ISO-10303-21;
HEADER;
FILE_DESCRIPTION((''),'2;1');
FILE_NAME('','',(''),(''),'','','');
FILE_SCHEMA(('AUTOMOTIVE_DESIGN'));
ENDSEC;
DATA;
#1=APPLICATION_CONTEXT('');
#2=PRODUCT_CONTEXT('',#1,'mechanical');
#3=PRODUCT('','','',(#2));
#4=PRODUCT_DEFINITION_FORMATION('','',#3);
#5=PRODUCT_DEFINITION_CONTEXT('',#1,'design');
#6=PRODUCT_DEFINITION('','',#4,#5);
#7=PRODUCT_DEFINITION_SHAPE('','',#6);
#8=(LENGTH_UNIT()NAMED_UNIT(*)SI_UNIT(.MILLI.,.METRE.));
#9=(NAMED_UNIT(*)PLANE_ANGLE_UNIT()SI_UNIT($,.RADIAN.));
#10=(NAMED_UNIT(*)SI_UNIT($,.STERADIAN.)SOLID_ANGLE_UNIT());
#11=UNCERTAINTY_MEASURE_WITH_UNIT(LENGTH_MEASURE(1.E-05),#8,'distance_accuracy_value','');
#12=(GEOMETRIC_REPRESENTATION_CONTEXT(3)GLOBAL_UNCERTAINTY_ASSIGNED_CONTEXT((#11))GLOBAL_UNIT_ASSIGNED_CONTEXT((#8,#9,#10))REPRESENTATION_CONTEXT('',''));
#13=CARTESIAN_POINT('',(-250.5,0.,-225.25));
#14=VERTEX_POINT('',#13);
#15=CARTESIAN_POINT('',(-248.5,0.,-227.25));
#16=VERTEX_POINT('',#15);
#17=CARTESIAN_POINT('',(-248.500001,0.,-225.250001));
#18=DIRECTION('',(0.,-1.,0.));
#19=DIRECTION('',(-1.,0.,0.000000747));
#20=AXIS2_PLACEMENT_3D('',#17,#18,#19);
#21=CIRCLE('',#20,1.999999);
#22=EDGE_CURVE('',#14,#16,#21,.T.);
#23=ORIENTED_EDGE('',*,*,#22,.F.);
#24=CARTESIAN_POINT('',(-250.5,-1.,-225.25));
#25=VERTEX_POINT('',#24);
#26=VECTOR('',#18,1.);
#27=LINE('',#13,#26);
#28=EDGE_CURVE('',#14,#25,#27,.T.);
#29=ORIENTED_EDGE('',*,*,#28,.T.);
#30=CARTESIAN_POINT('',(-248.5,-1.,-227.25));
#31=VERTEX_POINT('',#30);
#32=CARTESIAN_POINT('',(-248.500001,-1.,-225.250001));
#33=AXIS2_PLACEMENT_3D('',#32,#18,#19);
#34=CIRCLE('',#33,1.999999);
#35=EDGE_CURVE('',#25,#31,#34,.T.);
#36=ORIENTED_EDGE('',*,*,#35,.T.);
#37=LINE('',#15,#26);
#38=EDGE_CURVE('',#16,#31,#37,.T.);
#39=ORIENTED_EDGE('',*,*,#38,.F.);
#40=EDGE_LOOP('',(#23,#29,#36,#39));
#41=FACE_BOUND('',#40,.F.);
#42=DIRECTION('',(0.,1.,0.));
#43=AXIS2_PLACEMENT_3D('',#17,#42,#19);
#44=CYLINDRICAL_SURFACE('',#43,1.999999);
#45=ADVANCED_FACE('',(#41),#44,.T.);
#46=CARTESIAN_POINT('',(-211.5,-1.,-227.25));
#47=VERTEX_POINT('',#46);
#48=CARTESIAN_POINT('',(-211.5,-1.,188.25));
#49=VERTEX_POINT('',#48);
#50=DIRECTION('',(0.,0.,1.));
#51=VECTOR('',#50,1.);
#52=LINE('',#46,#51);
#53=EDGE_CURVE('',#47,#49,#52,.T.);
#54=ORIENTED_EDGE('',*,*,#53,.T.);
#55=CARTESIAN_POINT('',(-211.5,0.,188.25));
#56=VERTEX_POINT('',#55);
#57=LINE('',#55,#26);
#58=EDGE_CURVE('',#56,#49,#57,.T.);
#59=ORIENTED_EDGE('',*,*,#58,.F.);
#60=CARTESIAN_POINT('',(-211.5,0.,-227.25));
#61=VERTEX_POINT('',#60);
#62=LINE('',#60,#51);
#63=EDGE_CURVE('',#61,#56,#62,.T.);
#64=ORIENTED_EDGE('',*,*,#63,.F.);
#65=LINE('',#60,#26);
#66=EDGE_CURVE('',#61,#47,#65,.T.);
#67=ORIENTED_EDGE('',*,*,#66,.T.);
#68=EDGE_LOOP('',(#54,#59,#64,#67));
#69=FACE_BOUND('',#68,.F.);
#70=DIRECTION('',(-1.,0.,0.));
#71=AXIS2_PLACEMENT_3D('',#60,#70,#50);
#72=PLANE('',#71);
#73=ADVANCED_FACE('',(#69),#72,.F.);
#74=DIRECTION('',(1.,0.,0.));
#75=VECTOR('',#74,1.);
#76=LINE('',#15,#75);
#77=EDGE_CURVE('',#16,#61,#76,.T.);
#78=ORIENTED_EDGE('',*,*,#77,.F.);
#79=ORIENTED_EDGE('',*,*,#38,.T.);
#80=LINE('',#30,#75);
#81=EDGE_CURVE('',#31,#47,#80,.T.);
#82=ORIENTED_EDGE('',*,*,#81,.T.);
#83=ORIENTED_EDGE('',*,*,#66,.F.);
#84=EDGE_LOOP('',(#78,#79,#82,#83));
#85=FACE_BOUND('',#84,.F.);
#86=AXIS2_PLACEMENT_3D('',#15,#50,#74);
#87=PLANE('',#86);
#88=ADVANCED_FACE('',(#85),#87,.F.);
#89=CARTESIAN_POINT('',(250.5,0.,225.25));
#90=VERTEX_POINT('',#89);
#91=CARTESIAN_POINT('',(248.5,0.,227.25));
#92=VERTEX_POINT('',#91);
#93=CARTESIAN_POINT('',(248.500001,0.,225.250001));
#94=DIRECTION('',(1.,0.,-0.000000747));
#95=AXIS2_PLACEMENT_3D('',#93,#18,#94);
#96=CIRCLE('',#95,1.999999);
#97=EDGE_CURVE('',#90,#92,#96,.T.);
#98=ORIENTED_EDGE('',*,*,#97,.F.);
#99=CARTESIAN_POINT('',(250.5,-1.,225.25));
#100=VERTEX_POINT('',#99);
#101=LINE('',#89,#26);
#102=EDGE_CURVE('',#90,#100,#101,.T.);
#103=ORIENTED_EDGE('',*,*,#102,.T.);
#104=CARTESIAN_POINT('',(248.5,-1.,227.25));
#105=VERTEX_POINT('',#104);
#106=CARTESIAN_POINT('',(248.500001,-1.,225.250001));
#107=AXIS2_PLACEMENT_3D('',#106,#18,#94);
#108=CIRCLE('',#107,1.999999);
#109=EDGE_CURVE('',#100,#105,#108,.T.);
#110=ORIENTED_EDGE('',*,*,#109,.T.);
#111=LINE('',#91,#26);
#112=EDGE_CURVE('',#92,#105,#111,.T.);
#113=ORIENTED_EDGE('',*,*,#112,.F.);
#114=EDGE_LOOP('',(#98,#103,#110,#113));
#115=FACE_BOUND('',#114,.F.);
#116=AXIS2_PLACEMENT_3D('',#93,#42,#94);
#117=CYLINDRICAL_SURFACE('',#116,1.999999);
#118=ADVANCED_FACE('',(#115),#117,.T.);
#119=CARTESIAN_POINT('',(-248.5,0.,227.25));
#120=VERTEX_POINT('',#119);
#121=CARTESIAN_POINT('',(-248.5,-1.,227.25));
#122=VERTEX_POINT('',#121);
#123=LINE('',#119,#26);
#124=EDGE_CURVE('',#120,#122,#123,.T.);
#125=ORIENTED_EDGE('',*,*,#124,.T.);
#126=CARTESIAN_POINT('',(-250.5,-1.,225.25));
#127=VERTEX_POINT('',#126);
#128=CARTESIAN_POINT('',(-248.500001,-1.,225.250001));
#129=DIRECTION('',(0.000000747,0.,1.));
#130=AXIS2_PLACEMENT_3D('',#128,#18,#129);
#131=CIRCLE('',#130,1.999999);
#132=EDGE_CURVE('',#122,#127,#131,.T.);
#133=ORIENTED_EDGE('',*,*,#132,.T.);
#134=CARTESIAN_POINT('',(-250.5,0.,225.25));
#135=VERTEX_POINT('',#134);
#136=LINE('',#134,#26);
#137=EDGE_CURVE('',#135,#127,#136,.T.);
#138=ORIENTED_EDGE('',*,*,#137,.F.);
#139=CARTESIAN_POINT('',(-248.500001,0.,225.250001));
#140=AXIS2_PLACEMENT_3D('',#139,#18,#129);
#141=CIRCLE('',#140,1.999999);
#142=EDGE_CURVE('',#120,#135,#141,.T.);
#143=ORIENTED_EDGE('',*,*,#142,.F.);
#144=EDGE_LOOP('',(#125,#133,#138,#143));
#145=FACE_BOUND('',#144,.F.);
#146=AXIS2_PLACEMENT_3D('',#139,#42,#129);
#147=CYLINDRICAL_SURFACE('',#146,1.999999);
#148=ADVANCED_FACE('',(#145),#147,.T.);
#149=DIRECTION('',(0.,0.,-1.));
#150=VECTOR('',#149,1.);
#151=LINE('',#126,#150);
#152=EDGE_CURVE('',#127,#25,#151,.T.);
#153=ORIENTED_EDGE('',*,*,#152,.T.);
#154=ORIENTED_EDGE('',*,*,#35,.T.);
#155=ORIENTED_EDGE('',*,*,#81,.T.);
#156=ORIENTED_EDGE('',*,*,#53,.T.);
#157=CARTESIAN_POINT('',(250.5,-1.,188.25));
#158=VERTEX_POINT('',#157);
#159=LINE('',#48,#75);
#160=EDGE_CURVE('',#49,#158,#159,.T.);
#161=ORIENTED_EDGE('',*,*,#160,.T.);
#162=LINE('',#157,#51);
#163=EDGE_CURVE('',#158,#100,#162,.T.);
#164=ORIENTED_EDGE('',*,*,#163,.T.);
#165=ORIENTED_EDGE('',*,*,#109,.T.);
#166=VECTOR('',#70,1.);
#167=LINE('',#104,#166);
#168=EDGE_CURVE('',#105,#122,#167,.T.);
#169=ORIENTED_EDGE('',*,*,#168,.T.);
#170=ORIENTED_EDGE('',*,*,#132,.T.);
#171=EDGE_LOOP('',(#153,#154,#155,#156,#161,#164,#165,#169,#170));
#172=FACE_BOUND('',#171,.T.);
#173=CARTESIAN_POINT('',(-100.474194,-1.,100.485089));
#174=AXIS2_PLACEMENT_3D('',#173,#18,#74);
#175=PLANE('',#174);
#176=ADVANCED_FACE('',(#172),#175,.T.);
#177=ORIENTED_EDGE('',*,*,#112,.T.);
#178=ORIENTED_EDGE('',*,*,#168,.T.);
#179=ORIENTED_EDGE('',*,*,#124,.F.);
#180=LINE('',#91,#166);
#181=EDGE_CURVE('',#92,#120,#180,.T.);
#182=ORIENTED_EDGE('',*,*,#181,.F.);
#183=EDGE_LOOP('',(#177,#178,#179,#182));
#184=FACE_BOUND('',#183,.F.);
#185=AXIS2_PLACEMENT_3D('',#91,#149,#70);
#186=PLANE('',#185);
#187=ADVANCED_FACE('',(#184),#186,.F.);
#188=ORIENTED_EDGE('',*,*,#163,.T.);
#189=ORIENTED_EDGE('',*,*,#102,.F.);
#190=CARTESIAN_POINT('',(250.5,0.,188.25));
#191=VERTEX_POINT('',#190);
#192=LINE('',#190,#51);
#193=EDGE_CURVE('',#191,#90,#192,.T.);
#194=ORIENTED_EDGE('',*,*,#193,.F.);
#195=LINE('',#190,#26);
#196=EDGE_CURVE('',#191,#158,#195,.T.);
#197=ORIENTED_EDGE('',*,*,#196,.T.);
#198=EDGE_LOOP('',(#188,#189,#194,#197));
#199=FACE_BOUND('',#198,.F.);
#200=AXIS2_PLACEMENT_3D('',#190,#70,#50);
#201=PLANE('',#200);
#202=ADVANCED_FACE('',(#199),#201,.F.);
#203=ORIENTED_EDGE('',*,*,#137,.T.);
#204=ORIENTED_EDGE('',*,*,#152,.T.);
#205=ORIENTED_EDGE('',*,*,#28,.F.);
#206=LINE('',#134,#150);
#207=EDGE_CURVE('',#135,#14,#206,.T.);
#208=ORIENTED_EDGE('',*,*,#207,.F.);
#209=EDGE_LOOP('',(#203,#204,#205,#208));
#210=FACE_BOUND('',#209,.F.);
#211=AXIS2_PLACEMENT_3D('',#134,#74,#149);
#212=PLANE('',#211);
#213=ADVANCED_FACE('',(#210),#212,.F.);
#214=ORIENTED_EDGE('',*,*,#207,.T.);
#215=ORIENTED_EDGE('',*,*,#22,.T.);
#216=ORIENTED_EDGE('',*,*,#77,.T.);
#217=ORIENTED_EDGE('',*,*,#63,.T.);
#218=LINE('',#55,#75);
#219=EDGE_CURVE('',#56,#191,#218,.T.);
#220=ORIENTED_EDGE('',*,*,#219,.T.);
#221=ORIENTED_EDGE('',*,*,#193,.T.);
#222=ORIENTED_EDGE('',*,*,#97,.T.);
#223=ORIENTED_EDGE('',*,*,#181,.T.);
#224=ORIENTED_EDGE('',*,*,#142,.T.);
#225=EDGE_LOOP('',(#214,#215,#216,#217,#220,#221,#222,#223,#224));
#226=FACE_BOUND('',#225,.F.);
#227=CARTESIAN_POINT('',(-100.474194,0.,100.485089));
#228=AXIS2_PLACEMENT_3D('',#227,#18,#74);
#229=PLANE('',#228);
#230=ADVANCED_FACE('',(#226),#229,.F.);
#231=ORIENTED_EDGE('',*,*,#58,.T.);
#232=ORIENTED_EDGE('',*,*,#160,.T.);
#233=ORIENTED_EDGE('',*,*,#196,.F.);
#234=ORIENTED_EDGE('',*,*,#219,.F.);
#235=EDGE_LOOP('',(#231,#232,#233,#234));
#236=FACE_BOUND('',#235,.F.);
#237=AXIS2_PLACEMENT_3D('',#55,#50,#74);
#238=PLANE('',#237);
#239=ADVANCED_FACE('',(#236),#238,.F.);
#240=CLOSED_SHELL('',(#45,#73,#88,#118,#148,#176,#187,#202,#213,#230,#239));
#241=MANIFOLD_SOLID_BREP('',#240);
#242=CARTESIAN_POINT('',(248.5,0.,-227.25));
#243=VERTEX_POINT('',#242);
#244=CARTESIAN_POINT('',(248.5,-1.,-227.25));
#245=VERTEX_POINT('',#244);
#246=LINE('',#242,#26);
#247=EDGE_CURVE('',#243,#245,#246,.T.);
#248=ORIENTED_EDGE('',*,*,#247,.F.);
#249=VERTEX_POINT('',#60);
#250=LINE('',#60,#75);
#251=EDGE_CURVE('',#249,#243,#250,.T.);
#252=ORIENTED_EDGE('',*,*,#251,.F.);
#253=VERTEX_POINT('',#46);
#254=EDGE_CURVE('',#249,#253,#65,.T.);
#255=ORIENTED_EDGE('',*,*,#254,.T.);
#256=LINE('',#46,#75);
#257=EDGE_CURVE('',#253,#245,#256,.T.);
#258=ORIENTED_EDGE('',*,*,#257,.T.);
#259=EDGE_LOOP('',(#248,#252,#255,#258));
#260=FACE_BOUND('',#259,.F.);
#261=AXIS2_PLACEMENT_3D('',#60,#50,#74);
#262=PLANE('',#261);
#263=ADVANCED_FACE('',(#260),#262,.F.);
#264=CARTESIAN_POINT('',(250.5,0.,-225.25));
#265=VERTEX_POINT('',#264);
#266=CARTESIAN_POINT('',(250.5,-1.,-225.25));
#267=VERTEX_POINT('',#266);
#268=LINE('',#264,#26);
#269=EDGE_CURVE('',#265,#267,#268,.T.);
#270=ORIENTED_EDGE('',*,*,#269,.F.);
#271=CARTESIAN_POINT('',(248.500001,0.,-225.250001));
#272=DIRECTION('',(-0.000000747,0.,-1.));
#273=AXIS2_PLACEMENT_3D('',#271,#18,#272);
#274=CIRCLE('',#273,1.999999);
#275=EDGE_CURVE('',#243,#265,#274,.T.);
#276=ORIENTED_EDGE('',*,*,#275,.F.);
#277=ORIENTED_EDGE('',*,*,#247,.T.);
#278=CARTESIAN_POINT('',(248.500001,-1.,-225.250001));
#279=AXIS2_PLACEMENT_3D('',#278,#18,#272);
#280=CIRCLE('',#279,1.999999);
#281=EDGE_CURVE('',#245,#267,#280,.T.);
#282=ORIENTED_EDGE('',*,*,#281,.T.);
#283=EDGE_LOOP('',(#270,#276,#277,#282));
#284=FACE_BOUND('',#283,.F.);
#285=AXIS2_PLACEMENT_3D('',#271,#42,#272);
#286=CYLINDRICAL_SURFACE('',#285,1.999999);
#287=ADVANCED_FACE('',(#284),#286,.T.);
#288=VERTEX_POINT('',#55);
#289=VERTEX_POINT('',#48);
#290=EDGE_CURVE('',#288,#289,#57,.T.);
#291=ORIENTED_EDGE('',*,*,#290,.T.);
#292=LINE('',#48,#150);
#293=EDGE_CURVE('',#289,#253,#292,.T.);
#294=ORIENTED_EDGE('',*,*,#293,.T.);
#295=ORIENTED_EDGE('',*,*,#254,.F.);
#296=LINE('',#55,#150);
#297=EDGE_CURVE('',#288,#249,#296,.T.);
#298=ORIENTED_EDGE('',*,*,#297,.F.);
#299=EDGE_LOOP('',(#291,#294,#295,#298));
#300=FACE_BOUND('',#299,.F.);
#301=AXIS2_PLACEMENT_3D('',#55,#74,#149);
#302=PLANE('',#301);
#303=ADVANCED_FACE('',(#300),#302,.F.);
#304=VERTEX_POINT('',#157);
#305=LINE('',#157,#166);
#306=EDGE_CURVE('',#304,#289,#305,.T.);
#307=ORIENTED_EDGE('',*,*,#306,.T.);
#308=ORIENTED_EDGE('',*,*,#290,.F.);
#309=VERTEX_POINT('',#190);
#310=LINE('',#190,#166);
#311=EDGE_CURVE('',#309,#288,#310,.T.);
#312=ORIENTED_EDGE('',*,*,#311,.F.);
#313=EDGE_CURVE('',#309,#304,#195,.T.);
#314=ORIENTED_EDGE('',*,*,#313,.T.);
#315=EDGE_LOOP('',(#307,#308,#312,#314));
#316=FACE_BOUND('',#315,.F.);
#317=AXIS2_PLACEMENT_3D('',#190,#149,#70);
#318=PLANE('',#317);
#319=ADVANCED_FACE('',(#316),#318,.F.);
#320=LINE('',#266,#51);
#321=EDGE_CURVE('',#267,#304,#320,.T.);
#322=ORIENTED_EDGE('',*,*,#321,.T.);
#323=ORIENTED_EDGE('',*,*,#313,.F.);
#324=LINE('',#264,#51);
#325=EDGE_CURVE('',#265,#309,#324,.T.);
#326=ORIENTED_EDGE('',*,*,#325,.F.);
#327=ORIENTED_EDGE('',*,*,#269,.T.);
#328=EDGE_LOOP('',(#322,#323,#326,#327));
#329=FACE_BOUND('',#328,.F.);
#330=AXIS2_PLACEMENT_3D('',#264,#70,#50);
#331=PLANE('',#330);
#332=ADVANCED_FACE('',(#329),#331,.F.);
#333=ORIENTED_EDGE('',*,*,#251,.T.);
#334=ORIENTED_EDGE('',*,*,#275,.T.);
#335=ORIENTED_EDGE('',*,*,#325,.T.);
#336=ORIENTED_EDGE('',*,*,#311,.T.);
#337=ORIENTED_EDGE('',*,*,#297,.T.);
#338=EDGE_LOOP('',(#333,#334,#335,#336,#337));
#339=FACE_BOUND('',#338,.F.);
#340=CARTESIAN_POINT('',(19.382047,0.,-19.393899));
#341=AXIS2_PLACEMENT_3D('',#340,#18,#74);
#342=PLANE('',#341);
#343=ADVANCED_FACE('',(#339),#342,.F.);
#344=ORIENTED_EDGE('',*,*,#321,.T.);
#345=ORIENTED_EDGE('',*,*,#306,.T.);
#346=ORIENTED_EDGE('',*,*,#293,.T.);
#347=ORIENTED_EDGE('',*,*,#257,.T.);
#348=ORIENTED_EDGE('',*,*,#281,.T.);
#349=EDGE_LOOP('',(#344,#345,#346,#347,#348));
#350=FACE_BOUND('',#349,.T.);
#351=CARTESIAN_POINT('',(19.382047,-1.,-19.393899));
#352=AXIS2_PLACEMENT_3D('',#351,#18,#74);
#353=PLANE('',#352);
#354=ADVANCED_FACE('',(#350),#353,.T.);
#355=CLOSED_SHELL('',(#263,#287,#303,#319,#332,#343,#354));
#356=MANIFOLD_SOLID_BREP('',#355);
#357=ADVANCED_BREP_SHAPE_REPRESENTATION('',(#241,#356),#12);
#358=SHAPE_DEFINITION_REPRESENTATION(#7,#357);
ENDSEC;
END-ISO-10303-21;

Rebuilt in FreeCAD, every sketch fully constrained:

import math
import FreeCAD as App
import Part
import Sketcher
from FreeCAD import Vector
Q = App.Units.Quantity

doc = App.newDocument("Part")
body = doc.addObject("PartDesign::Body", "Body")

sketch1 = body.newObject("Sketcher::SketchObject", "Sketch")
sketch1.AttachmentSupport = (doc.getObject("XZ_Plane"), [""])
sketch1.MapMode = "FlatFace"
sketch1.addGeometry([
    Part.LineSegment(Vector(250.5, -225.25, 0), Vector(250.5, 188.25, 0)),
    Part.LineSegment(Vector(250.5, 188.25, 0), Vector(-211.5, 188.25, 0)),
    Part.LineSegment(Vector(-211.5, 188.25, 0), Vector(-211.5, -227.25, 0)),
    Part.LineSegment(Vector(-211.5, -227.25, 0), Vector(248.5, -227.25, 0)),
    Part.ArcOfCircle(Part.Circle(Vector(248.500001, -225.250001, 0), Vector(0, 0, 1), 1.999999), math.radians(-90.000043), math.radians(0.000043)),
], False)
sketch1.addConstraint([
    Sketcher.Constraint("Coincident", 0, 2, 1, 1),
    Sketcher.Constraint("Coincident", 1, 2, 2, 1),
    Sketcher.Constraint("Coincident", 2, 2, 3, 1),
    Sketcher.Constraint("Tangent", 3, 2, 4, 1),
    Sketcher.Constraint("Tangent", 4, 2, 0, 1),
    Sketcher.Constraint("Vertical", 0),
    Sketcher.Constraint("Horizontal", 1),
    Sketcher.Constraint("Vertical", 2),
    Sketcher.Constraint("Horizontal", 3),
    Sketcher.Constraint("Radius", 4, Q("1.999999 mm")),
    Sketcher.Constraint("DistanceX", 1, 2, 1, 1, Q("462 mm")),
    Sketcher.Constraint("DistanceY", 0, 1, 0, 2, Q("413.5 mm")),
    Sketcher.Constraint("DistanceX", -1, 1, 4, 3, Q("248.500001 mm")),
    Sketcher.Constraint("DistanceY", 4, 3, -1, 1, Q("225.250001 mm")),
])
pad1 = body.newObject("PartDesign::Pad", "Pad")
pad1.Profile = sketch1
pad1.Length = 1
body2 = doc.addObject("PartDesign::Body", "Body001")

sketch2 = body2.newObject("Sketcher::SketchObject", "Sketch001")
sketch2.AttachmentSupport = (doc.getObject("XZ_Plane001"), [""])
sketch2.MapMode = "FlatFace"
sketch2.addGeometry([
    Part.ArcOfCircle(Part.Circle(Vector(248.500001, 225.250001, 0), Vector(0, 0, 1), 1.999999), math.radians(-0.000043), math.radians(90.000043)),
    Part.LineSegment(Vector(248.5, 227.25, 0), Vector(-248.5, 227.25, 0)),
    Part.ArcOfCircle(Part.Circle(Vector(-248.500001, 225.250001, 0), Vector(0, 0, 1), 1.999999), math.radians(89.999957), math.radians(180.000043)),
    Part.LineSegment(Vector(-250.5, 225.25, 0), Vector(-250.5, -225.25, 0)),
    Part.ArcOfCircle(Part.Circle(Vector(-248.500001, -225.250001, 0), Vector(0, 0, 1), 1.999999), math.radians(179.999957), math.radians(270.000043)),
    Part.LineSegment(Vector(-248.5, -227.25, 0), Vector(-211.5, -227.25, 0)),
    Part.LineSegment(Vector(-211.5, -227.25, 0), Vector(-211.5, 188.25, 0)),
    Part.LineSegment(Vector(-211.5, 188.25, 0), Vector(250.5, 188.25, 0)),
    Part.LineSegment(Vector(250.5, 188.25, 0), Vector(250.5, 225.25, 0)),
], False)
sketch2.addConstraint([
    Sketcher.Constraint("Tangent", 0, 2, 1, 1),
    Sketcher.Constraint("Tangent", 1, 2, 2, 1),
    Sketcher.Constraint("Tangent", 2, 2, 3, 1),
    Sketcher.Constraint("Tangent", 3, 2, 4, 1),
    Sketcher.Constraint("Tangent", 4, 2, 5, 1),
    Sketcher.Constraint("Coincident", 5, 2, 6, 1),
    Sketcher.Constraint("Coincident", 6, 2, 7, 1),
    Sketcher.Constraint("Coincident", 7, 2, 8, 1),
    Sketcher.Constraint("Tangent", 8, 2, 0, 1),
    Sketcher.Constraint("Horizontal", 1),
    Sketcher.Constraint("Vertical", 3),
    Sketcher.Constraint("Horizontal", 5),
    Sketcher.Constraint("Vertical", 6),
    Sketcher.Constraint("Horizontal", 7),
    Sketcher.Constraint("Vertical", 8),
    Sketcher.Constraint("Equal", 0, 2),
    Sketcher.Constraint("Equal", 2, 4),
    Sketcher.Constraint("Symmetric", 0, 3, 4, 3, -1, 1),
    Sketcher.Constraint("Equal", 5, 8),
    Sketcher.Constraint("Radius", 0, Q("1.999999 mm")),
    Sketcher.Constraint("DistanceX", 1, 2, 1, 1, Q("497 mm")),
    Sketcher.Constraint("DistanceX", 5, 1, 5, 2, Q("37 mm")),
    Sketcher.Constraint("DistanceY", 3, 2, 3, 1, Q("450.5 mm")),
])
pad2 = body2.newObject("PartDesign::Pad", "Pad001")
pad2.Profile = sketch2
pad2.Length = 1

doc.recompute()
